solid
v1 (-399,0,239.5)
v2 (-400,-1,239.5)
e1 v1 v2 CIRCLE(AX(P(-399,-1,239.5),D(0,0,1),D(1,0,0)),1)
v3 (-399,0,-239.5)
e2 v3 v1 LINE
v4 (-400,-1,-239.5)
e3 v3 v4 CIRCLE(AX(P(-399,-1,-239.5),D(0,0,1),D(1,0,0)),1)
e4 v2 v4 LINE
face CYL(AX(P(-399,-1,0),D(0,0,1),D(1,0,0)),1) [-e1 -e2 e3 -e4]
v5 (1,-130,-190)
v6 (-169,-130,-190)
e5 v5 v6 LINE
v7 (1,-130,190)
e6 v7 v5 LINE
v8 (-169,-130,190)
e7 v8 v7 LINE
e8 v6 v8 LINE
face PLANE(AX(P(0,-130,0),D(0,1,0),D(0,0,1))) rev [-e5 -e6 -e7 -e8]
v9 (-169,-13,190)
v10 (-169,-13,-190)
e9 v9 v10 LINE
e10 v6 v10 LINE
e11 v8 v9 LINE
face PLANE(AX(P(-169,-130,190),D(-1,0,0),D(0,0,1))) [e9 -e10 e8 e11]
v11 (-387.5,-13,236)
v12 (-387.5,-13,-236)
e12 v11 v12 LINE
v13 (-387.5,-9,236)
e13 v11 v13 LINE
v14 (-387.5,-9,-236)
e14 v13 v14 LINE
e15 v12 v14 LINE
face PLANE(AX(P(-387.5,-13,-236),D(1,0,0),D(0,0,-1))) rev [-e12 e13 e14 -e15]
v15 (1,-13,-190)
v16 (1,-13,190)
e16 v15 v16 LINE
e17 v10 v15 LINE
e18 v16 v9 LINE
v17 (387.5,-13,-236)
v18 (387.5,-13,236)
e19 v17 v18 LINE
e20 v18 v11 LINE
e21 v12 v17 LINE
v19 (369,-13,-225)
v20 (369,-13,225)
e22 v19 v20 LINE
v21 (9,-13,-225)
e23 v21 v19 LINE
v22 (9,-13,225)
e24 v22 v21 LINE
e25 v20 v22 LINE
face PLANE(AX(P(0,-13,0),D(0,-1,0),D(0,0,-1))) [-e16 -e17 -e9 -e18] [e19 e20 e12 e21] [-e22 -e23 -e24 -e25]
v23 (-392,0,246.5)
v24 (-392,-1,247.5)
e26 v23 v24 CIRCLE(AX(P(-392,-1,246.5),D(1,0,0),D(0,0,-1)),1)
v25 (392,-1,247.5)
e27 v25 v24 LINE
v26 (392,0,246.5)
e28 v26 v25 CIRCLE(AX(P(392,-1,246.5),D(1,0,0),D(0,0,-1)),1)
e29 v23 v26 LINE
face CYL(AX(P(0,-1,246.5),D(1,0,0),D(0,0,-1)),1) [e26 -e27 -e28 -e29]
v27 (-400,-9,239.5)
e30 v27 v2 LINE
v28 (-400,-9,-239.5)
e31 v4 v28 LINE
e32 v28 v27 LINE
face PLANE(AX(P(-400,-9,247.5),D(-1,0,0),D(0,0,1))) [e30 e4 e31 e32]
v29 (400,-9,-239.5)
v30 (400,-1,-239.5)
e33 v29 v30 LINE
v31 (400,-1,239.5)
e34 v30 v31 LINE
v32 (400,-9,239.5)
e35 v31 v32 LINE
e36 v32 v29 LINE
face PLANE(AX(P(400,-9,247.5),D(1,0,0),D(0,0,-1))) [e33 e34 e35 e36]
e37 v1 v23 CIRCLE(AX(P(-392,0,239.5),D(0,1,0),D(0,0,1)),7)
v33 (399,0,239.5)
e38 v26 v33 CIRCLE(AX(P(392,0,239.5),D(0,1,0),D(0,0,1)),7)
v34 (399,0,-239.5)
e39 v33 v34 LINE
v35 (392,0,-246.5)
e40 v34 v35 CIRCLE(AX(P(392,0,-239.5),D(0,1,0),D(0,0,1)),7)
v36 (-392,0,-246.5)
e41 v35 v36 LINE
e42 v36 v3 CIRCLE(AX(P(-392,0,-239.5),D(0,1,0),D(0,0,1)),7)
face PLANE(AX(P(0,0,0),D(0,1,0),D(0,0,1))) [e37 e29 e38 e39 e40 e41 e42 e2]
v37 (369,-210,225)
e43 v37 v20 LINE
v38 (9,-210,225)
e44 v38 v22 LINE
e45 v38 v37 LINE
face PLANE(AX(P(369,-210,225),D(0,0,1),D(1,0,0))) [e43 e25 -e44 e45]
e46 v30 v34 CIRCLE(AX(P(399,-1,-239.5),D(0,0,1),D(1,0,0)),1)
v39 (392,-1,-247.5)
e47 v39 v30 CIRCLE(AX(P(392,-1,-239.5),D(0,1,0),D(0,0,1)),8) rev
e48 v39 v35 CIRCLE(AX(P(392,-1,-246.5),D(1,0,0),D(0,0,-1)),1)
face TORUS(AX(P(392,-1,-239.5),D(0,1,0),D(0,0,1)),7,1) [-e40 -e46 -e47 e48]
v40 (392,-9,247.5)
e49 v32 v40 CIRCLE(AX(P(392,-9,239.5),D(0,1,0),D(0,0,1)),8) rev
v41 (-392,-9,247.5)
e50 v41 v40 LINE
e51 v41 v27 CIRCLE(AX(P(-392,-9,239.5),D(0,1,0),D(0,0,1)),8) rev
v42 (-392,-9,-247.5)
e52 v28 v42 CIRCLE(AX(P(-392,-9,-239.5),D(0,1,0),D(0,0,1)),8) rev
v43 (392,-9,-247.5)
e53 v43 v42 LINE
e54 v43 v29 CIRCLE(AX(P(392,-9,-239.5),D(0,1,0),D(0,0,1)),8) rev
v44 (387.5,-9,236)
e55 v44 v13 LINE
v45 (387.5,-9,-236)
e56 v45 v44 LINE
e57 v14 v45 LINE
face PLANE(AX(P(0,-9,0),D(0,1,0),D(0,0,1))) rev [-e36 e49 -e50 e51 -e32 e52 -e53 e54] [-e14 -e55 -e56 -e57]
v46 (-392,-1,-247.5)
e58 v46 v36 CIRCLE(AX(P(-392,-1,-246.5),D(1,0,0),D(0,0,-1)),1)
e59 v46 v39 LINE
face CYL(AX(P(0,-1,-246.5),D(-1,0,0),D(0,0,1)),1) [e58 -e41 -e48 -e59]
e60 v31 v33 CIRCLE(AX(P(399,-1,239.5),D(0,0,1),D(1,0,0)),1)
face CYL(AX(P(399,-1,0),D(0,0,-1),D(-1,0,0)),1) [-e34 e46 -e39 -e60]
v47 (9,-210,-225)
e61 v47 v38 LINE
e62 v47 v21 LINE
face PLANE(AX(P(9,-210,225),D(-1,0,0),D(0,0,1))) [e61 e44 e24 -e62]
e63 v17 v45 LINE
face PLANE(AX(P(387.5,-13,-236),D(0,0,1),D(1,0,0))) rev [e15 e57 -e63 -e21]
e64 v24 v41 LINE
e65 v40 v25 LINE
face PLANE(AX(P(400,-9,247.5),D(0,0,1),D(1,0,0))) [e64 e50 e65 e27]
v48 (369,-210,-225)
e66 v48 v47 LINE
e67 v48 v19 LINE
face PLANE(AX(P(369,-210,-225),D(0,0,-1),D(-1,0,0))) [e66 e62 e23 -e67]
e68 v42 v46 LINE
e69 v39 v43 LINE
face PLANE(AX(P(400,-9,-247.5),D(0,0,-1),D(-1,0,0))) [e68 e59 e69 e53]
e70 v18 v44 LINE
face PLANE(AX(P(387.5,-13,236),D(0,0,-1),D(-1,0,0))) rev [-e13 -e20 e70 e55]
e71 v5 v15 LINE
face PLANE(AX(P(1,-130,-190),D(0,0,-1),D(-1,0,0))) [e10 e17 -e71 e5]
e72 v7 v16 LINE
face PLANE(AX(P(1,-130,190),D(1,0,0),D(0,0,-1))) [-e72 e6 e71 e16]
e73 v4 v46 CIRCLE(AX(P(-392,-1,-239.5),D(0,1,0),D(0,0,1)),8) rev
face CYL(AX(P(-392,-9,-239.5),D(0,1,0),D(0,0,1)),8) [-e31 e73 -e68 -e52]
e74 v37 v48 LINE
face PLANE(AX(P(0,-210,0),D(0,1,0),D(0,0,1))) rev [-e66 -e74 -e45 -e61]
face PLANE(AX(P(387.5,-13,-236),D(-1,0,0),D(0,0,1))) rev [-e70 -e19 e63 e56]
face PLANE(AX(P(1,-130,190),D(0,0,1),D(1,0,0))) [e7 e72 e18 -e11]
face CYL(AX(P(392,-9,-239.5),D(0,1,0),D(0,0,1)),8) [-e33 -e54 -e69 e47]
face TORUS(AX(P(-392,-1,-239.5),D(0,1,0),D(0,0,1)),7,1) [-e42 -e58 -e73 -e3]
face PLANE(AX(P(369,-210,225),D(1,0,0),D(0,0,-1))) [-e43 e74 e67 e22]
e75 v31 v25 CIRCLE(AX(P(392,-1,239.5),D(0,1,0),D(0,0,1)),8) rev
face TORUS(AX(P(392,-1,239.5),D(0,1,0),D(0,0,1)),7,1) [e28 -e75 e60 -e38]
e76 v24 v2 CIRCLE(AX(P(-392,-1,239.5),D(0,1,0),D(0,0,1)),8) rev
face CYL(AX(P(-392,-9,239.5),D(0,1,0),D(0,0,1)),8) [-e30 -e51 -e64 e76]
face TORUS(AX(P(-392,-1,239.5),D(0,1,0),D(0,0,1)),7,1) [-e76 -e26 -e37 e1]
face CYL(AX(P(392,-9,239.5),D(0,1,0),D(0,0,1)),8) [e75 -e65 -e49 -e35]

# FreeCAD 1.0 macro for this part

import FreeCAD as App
import Part
import Sketcher
from FreeCAD import Vector
Q = App.Units.Quantity


def edges_at(feature, points):
    """Names of the edges that pass closest to the given points."""
    edges = feature.Shape.Edges
    near = lambda p: min(range(len(edges)), key=lambda i: edges[i].distToShape(Part.Vertex(*p))[0])
    return sorted({f"Edge{near(p) + 1}" for p in points})

doc = App.newDocument("Part")
params = doc.addObject("Spreadsheet::Sheet", "Params")
for row, (alias, value) in enumerate([
    ("sketch1_width", "800 mm"),
    ("sketch1_height", "495 mm"),
    ("pad1_length", "9 mm"),
    ("fillet_radius", "8 mm"),
    ("fillet2_radius", "1 mm"),
    ("sketch2_width", "775 mm"),
    ("sketch2_height", "472 mm"),
    ("pad2_length", "4 mm"),
    ("sketch3_width", "170 mm"),
    ("sketch3_height", "380 mm"),
    ("pad3_length", "130 mm"),
    ("sketch4_width", "360 mm"),
    ("sketch4_height", "450 mm"),
    ("pad4_length", "210 mm"),
], start=1):
    params.set(f"A{row}", alias)
    params.set(f"B{row}", "=" + value)
    params.setAlias(f"B{row}", alias)

body = doc.addObject("PartDesign::Body", "Body")

sketch1 = body.newObject("Sketcher::SketchObject", "Sketch")
sketch1.AttachmentSupport = (doc.getObject("XZ_Plane"), [""])
sketch1.MapMode = "FlatFace"
sketch1.addGeometry([
    Part.LineSegment(Vector(-400, -247.5, 0), Vector(-400, 247.5, 0)),
    Part.LineSegment(Vector(-400, 247.5, 0), Vector(400, 247.5, 0)),
    Part.LineSegment(Vector(400, 247.5, 0), Vector(400, -247.5, 0)),
    Part.LineSegment(Vector(400, -247.5, 0), Vector(-400, -247.5, 0)),
], False)
sketch1.addConstraint([
    Sketcher.Constraint("Coincident", 0, 2, 1, 1),
    Sketcher.Constraint("Coincident", 1, 2, 2, 1),
    Sketcher.Constraint("Coincident", 2, 2, 3, 1),
    Sketcher.Constraint("Coincident", 3, 2, 0, 1),
    Sketcher.Constraint("Vertical", 0),
    Sketcher.Constraint("Horizontal", 1),
    Sketcher.Constraint("Vertical", 2),
    Sketcher.Constraint("Horizontal", 3),
    Sketcher.Constraint("Symmetric", 0, 2, 2, 2, -1, 1),
    Sketcher.Constraint("DistanceX", 1, 1, 1, 2, Q("800 mm")),
    Sketcher.Constraint("DistanceY", 0, 1, 0, 2, Q("495 mm")),
])
sketch1.setExpression("Constraints[9]", "Params.sketch1_width")
sketch1.setExpression("Constraints[10]", "Params.sketch1_height")
pad1 = body.newObject("PartDesign::Pad", "Pad")
pad1.Profile = sketch1
pad1.setExpression("Length", "Params.pad1_length")
doc.recompute()

fillet = body.newObject("PartDesign::Fillet", "Fillet")
fillet.Base = (pad1, edges_at(pad1, [
    (-400, -4.5, -247.5),
    (400, -4.5, -247.5),
    (400, -4.5, 247.5),
    (-400, -4.5, 247.5),
]))
fillet.setExpression("Radius", "Params.fillet_radius")
doc.recompute()

fillet2 = body.newObject("PartDesign::Fillet", "Fillet001")
fillet2.Base = (fillet, edges_at(fillet, [
    (400, 0, 0),
    (-400, 0, 0),
    (0, 0, 247.5),
    (0, 0, -247.5),
    (397.657, 0, 245.157),
    (-397.657, 0, 245.157),
    (-397.657, 0, -245.157),
    (397.657, 0, -245.157),
]))
fillet2.setExpression("Radius", "Params.fillet2_radius")

sketch2 = body.newObject("Sketcher::SketchObject", "Sketch001")
sketch2.AttachmentSupport = (doc.getObject("XZ_Plane"), [""])
sketch2.MapMode = "FlatFace"
sketch2.AttachmentOffset = App.Placement(Vector(0, 0, 9), App.Rotation())
sketch2.addGeometry([
    Part.LineSegment(Vector(-387.5, 236, 0), Vector(-387.5, -236, 0)),
    Part.LineSegment(Vector(-387.5, -236, 0), Vector(387.5, -236, 0)),
    Part.LineSegment(Vector(387.5, -236, 0), Vector(387.5, 236, 0)),
    Part.LineSegment(Vector(387.5, 236, 0), Vector(-387.5, 236, 0)),
], False)
sketch2.addConstraint([
    Sketcher.Constraint("Coincident", 0, 2, 1, 1),
    Sketcher.Constraint("Coincident", 1, 2, 2, 1),
    Sketcher.Constraint("Coincident", 2, 2, 3, 1),
    Sketcher.Constraint("Coincident", 3, 2, 0, 1),
    Sketcher.Constraint("Vertical", 0),
    Sketcher.Constraint("Horizontal", 1),
    Sketcher.Constraint("Vertical", 2),
    Sketcher.Constraint("Horizontal", 3),
    Sketcher.Constraint("Symmetric", 0, 2, 2, 2, -1, 1),
    Sketcher.Constraint("DistanceX", 1, 1, 1, 2, Q("775 mm")),
    Sketcher.Constraint("DistanceY", 0, 2, 0, 1, Q("472 mm")),
])
sketch2.setExpression("Constraints[9]", "Params.sketch2_width")
sketch2.setExpression("Constraints[10]", "Params.sketch2_height")
pad2 = body.newObject("PartDesign::Pad", "Pad001")
pad2.Profile = sketch2
pad2.setExpression("Length", "Params.pad2_length")

sketch3 = body.newObject("Sketcher::SketchObject", "Sketch002")
sketch3.AttachmentSupport = (doc.getObject("XZ_Plane"), [""])
sketch3.MapMode = "FlatFace"
sketch3.addGeometry([
    Part.LineSegment(Vector(-169, -190, 0), Vector(-169, 190, 0)),
    Part.LineSegment(Vector(-169, 190, 0), Vector(1, 190, 0)),
    Part.LineSegment(Vector(1, 190, 0), Vector(1, -190, 0)),
    Part.LineSegment(Vector(1, -190, 0), Vector(-169, -190, 0)),
], False)
sketch3.addConstraint([
    Sketcher.Constraint("Coincident", 0, 2, 1, 1),
    Sketcher.Constraint("Coincident", 1, 2, 2, 1),
    Sketcher.Constraint("Coincident", 2, 2, 3, 1),
    Sketcher.Constraint("Coincident", 3, 2, 0, 1),
    Sketcher.Constraint("Vertical", 0),
    Sketcher.Constraint("Horizontal", 1),
    Sketcher.Constraint("Vertical", 2),
    Sketcher.Constraint("Horizontal", 3),
    Sketcher.Constraint("DistanceX", 1, 1, 1, 2, Q("170 mm")),
    Sketcher.Constraint("DistanceY", 0, 1, 0, 2, Q("380 mm")),
    Sketcher.Constraint("DistanceX", 0, 2, -1, 1, Q("169 mm")),
    Sketcher.Constraint("DistanceY", -1, 1, 0, 2, Q("190 mm")),
])
sketch3.setExpression("Constraints[8]", "Params.sketch3_width")
sketch3.setExpression("Constraints[9]", "Params.sketch3_height")
pad3 = body.newObject("PartDesign::Pad", "Pad002")
pad3.Profile = sketch3
pad3.setExpression("Length", "Params.pad3_length")

sketch4 = body.newObject("Sketcher::SketchObject", "Sketch003")
sketch4.AttachmentSupport = (doc.getObject("XZ_Plane"), [""])
sketch4.MapMode = "FlatFace"
sketch4.addGeometry([
    Part.LineSegment(Vector(9, -225, 0), Vector(9, 225, 0)),
    Part.LineSegment(Vector(9, 225, 0), Vector(369, 225, 0)),
    Part.LineSegment(Vector(369, 225, 0), Vector(369, -225, 0)),
    Part.LineSegment(Vector(369, -225, 0), Vector(9, -225, 0)),
], False)
sketch4.addConstraint([
    Sketcher.Constraint("Coincident", 0, 2, 1, 1),
    Sketcher.Constraint("Coincident", 1, 2, 2, 1),
    Sketcher.Constraint("Coincident", 2, 2, 3, 1),
    Sketcher.Constraint("Coincident", 3, 2, 0, 1),
    Sketcher.Constraint("Vertical", 0),
    Sketcher.Constraint("Horizontal", 1),
    Sketcher.Constraint("Vertical", 2),
    Sketcher.Constraint("Horizontal", 3),
    Sketcher.Constraint("DistanceX", 1, 1, 1, 2, Q("360 mm")),
    Sketcher.Constraint("DistanceY", 0, 1, 0, 2, Q("450 mm")),
    Sketcher.Constraint("DistanceX", -1, 1, 0, 2, Q("9 mm")),
    Sketcher.Constraint("DistanceY", -1, 1, 0, 2, Q("225 mm")),
])
sketch4.setExpression("Constraints[8]", "Params.sketch4_width")
sketch4.setExpression("Constraints[9]", "Params.sketch4_height")
pad4 = body.newObject("PartDesign::Pad", "Pad003")
pad4.Profile = sketch4
pad4.setExpression("Length", "Params.pad4_length")

doc.recompute()
